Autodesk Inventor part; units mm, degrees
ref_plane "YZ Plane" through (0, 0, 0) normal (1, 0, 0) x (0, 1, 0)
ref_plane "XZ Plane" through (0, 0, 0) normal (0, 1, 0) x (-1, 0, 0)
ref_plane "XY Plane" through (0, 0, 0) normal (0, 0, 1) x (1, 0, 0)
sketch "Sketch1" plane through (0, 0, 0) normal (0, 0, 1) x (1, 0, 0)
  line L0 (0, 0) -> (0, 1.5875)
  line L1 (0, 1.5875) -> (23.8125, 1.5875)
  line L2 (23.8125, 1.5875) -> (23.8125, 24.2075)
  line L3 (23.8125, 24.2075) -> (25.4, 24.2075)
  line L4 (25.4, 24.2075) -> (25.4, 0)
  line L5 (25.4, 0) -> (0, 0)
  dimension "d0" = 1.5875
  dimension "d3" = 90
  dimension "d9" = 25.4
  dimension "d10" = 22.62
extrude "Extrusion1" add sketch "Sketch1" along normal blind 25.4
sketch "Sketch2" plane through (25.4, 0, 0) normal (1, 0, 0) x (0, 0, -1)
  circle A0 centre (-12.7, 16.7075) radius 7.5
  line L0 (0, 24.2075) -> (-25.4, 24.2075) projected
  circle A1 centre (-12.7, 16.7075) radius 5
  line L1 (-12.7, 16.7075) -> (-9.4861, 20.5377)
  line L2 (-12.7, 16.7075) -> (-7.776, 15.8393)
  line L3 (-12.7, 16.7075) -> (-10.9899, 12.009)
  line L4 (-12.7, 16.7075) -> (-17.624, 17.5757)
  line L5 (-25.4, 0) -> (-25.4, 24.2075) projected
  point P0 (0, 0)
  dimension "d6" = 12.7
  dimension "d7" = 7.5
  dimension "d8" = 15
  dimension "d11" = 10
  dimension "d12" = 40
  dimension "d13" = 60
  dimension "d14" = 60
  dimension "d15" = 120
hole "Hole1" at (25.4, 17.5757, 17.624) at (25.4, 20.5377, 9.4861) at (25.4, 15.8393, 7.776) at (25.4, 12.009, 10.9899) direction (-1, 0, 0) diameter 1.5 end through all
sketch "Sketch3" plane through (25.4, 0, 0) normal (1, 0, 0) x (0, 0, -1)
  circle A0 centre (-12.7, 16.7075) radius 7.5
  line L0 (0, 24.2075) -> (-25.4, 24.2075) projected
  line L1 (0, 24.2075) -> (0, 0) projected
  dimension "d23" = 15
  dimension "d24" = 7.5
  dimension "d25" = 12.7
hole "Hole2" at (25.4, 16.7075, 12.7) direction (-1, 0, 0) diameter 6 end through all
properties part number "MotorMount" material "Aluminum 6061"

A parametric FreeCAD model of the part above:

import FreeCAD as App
import Part
import Sketcher

V = App.Vector
Q = App.Units.Quantity

doc = App.newDocument("Part")
body = doc.addObject("PartDesign::Body", "Body")

# Sketch on XY plane
sketch1 = doc.addObject("Sketcher::SketchObject", "Sketch")
body.addObject(sketch1)
sketch1.AttachmentSupport = (doc.XY_Plane, [""])
sketch1.MapMode = "FlatFace"
sketch1.addGeometry(Part.LineSegment(V(0, 1.5875, 0), V(0, 0, 0)), False)
sketch1.addGeometry(Part.LineSegment(V(0, 0, 0), V(25.4, 0, 0)), False)
sketch1.addGeometry(Part.LineSegment(V(25.4, 0, 0), V(25.4, 24.2075, 0)), False)
sketch1.addGeometry(Part.LineSegment(V(25.4, 24.2075, 0), V(23.8125, 24.2075, 0)), False)
sketch1.addGeometry(Part.LineSegment(V(23.8125, 24.2075, 0), V(23.8125, 1.5875, 0)), False)
sketch1.addGeometry(Part.LineSegment(V(23.8125, 1.5875, 0), V(0, 1.5875, 0)), False)
sketch1.addConstraint(Sketcher.Constraint("Coincident", 0, 2, 1, 1))
sketch1.addConstraint(Sketcher.Constraint("Coincident", 1, 2, 2, 1))
sketch1.addConstraint(Sketcher.Constraint("Coincident", 2, 2, 3, 1))
sketch1.addConstraint(Sketcher.Constraint("Coincident", 3, 2, 4, 1))
sketch1.addConstraint(Sketcher.Constraint("Coincident", 4, 2, 5, 1))
sketch1.addConstraint(Sketcher.Constraint("Coincident", 5, 2, 0, 1))
sketch1.addConstraint(Sketcher.Constraint("Vertical", 0))
sketch1.addConstraint(Sketcher.Constraint("Horizontal", 1))
sketch1.addConstraint(Sketcher.Constraint("Vertical", 2))
sketch1.addConstraint(Sketcher.Constraint("Horizontal", 3))
sketch1.addConstraint(Sketcher.Constraint("Vertical", 4))
sketch1.addConstraint(Sketcher.Constraint("Horizontal", 5))
sketch1.addConstraint(Sketcher.Constraint("Coincident", 0, 2, -1, 1))
sketch1.addConstraint(Sketcher.Constraint("Equal", 3, 0))
sketch1.addConstraint(Sketcher.Constraint("DistanceX", 1, 1, 1, 2, Q("1 in")))
sketch1.addConstraint(Sketcher.Constraint("DistanceX", 3, 2, 3, 1, Q("0.0625 in")))
sketch1.addConstraint(Sketcher.Constraint("DistanceY", 4, 2, 4, 1, 22.62))
pad1 = doc.addObject("PartDesign::Pad", "Pad")
body.addObject(pad1)
pad1.Profile = sketch1
pad1.Length = Q("1 in")

# Sketch on YZ plane
sketch2 = doc.addObject("Sketcher::SketchObject", "Sketch001")
body.addObject(sketch2)
sketch2.AttachmentSupport = (doc.YZ_Plane, [""])
sketch2.MapMode = "FlatFace"
sketch2.AttachmentOffset = App.Placement(V(0, 0, 1 * 25.4), App.Rotation())
sketch2.addGeometry(Part.Circle(V(17.5757, 17.624, 0), V(0, 0, 1), 0.75), False)
sketch2.addGeometry(Part.Circle(V(20.5377, 9.4861, 0), V(0, 0, 1), 0.75), False)
sketch2.addGeometry(Part.Circle(V(15.8393, 7.776, 0), V(0, 0, 1), 0.75), False)
sketch2.addGeometry(Part.Circle(V(12.009, 10.9899, 0), V(0, 0, 1), 0.75), False)
sketch2.addConstraint(Sketcher.Constraint("Equal", 0, 1))
sketch2.addConstraint(Sketcher.Constraint("Equal", 1, 2))
sketch2.addConstraint(Sketcher.Constraint("Equal", 2, 3))
sketch2.addConstraint(Sketcher.Constraint("Diameter", 0, 1.5))
sketch2.addConstraint(Sketcher.Constraint("DistanceX", -1, 1, 2, 3, Q("0.6236 in")))
sketch2.addConstraint(Sketcher.Constraint("DistanceX", -1, 1, 3, 3, Q("0.4728 in")))
sketch2.addConstraint(Sketcher.Constraint("DistanceY", 1, 3, 0, 3, Q("0.3204 in")))
sketch2.addConstraint(Sketcher.Constraint("DistanceY", 1, 3, 3, 3, Q("0.0592 in")))
sketch2.addConstraint(Sketcher.Constraint("DistanceX", -1, 1, 0, 3, 17.5757))
sketch2.addConstraint(Sketcher.Constraint("DistanceY", -1, 1, 0, 3, 17.624))
sketch2.addConstraint(Sketcher.Constraint("DistanceX", -1, 1, 1, 3, 20.5377))
sketch2.addConstraint(Sketcher.Constraint("DistanceY", -1, 1, 2, 3, 7.776))
doc.recompute()
hole = doc.addObject("PartDesign::Hole", "Hole")
body.addObject(hole)
hole.Profile = sketch2
hole.ThreadType = "None"
hole.Diameter = 1.5
hole.DepthType = "ThroughAll"

# Sketch on YZ plane
sketch3 = doc.addObject("Sketcher::SketchObject", "Sketch002")
body.addObject(sketch3)
sketch3.AttachmentSupport = (doc.YZ_Plane, [""])
sketch3.MapMode = "FlatFace"
sketch3.AttachmentOffset = App.Placement(V(0, 0, 1 * 25.4), App.Rotation())
sketch3.addGeometry(Part.Circle(V(16.7075, 12.7, 0), V(0, 0, 1), 3), False)
sketch3.addConstraint(Sketcher.Constraint("DistanceY", -1, 1, 0, 3, Q("0.5 in")))
sketch3.addConstraint(Sketcher.Constraint("Diameter", 0, 6.0))
sketch3.addConstraint(Sketcher.Constraint("DistanceX", -1, 1, 0, 3, 16.7075))
doc.recompute()
hole2 = doc.addObject("PartDesign::Hole", "Hole001")
body.addObject(hole2)
hole2.Profile = sketch3
hole2.ThreadType = "None"
hole2.Diameter = 6
hole2.DepthType = "ThroughAll"

doc.recompute()
